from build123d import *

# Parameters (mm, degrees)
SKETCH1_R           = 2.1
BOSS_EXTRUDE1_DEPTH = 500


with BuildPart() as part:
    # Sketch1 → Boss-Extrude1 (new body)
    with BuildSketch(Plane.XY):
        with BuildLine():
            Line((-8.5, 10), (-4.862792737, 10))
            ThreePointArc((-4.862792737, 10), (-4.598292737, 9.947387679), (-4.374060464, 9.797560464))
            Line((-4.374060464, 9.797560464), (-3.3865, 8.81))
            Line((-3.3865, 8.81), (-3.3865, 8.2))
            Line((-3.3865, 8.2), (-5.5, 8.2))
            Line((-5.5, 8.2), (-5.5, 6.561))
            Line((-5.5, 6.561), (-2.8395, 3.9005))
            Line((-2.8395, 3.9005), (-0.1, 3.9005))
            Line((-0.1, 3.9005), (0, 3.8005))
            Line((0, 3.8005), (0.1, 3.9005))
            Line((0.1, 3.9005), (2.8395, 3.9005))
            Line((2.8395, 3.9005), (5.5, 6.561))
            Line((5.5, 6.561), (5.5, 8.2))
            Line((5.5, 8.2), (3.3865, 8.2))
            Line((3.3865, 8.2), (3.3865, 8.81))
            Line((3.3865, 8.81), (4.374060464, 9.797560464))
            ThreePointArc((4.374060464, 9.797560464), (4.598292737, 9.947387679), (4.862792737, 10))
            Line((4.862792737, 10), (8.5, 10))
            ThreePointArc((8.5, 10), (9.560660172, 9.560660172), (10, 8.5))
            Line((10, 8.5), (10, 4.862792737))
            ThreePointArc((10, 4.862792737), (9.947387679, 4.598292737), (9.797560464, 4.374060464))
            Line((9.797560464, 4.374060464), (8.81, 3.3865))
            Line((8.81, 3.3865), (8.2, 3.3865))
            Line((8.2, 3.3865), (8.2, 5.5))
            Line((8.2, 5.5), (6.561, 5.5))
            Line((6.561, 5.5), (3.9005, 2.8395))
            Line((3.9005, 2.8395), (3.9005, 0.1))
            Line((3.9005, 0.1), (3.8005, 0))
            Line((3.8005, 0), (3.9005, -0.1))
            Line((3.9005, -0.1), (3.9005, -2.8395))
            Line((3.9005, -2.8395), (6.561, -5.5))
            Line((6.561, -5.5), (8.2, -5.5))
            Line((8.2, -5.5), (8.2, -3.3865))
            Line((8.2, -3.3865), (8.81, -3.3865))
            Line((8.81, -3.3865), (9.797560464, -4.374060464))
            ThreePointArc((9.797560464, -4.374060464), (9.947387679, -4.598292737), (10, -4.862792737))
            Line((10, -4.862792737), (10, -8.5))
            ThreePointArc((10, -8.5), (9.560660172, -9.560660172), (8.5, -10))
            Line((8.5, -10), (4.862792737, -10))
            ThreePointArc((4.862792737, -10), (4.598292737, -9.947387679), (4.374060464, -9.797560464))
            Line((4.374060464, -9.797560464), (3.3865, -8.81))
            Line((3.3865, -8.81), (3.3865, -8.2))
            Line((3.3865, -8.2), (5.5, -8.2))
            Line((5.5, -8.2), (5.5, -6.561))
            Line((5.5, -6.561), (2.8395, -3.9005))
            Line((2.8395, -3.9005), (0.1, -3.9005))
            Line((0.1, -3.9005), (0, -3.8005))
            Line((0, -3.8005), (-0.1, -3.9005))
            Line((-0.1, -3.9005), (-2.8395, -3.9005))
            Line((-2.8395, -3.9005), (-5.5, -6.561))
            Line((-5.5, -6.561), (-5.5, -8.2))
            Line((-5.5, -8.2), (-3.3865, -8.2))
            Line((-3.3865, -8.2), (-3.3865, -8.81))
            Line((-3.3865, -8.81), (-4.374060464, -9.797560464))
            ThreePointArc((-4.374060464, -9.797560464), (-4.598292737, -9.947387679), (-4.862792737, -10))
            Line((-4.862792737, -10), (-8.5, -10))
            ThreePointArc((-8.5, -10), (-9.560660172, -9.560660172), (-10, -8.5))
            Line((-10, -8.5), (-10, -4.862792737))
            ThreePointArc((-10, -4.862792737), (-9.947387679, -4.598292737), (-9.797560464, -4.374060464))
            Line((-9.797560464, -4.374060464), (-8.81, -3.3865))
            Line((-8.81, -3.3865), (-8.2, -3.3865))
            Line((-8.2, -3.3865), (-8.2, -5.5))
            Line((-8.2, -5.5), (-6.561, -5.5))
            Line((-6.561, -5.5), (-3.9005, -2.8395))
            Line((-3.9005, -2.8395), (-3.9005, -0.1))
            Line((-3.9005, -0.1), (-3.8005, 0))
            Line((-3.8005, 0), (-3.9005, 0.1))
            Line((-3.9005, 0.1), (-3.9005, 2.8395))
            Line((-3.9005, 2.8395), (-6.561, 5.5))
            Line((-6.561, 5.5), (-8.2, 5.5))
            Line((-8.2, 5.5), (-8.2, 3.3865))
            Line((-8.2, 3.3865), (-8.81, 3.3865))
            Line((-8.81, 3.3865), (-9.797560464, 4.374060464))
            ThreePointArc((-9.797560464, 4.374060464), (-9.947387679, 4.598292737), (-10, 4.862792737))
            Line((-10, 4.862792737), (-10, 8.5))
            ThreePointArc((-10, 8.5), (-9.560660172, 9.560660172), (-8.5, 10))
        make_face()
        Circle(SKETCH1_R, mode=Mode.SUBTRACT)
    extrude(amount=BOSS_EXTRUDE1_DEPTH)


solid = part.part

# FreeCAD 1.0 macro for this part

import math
import FreeCAD as App
import Part
import Sketcher

V = App.Vector

doc = App.newDocument("Part")
body = doc.addObject("PartDesign::Body", "Body")

sketch1 = body.newObject("Sketcher::SketchObject", "Sketch")
sketch1.AttachmentSupport = (doc.getObject("XY_Plane"), [""])
sketch1.MapMode = "FlatFace"
sketch1.addGeometry(Part.LineSegment(V(-4.86, 10, 0), V(-8.5, 10, 0)), False)
sketch1.addGeometry(Part.ArcOfCircle(Part.Circle(V(-8.5, 8.5, 0), V(0, 0, 1), 1.5), math.radians(90), math.radians(180)), False)
sketch1.addGeometry(Part.LineSegment(V(-10, 8.5, 0), V(-10, 4.86, 0)), False)
sketch1.addGeometry(Part.ArcOfCircle(Part.Circle(V(-9.31, 4.86, 0), V(0, 0, 1), 0.69), math.radians(180), math.radians(225)), False)
sketch1.addGeometry(Part.LineSegment(V(-9.8, 4.37, 0), V(-8.81, 3.39, 0)), False)
sketch1.addGeometry(Part.LineSegment(V(-8.81, 3.39, 0), V(-8.2, 3.39, 0)), False)
sketch1.addGeometry(Part.LineSegment(V(-8.2, 3.39, 0), V(-8.2, 5.5, 0)), False)
sketch1.addGeometry(Part.LineSegment(V(-8.2, 5.5, 0), V(-6.56, 5.5, 0)), False)
sketch1.addGeometry(Part.LineSegment(V(-6.56, 5.5, 0), V(-3.9, 2.84, 0)), False)
sketch1.addGeometry(Part.LineSegment(V(-3.9, 2.84, 0), V(-3.9, 0.1, 0)), False)
sketch1.addGeometry(Part.LineSegment(V(-3.9, 0.1, 0), V(-3.8, 0, 0)), False)
sketch1.addGeometry(Part.LineSegment(V(-3.8, 0, 0), V(-3.9, -0.1, 0)), False)
sketch1.addGeometry(Part.LineSegment(V(-3.9, -0.1, 0), V(-3.9, -2.84, 0)), False)
sketch1.addGeometry(Part.LineSegment(V(-3.9, -2.84, 0), V(-6.56, -5.5, 0)), False)
sketch1.addGeometry(Part.LineSegment(V(-6.56, -5.5, 0), V(-8.2, -5.5, 0)), False)
sketch1.addGeometry(Part.LineSegment(V(-8.2, -5.5, 0), V(-8.2, -3.39, 0)), False)
sketch1.addGeometry(Part.LineSegment(V(-8.2, -3.39, 0), V(-8.81, -3.39, 0)), False)
sketch1.addGeometry(Part.LineSegment(V(-8.81, -3.39, 0), V(-9.8, -4.37, 0)), False)
sketch1.addGeometry(Part.ArcOfCircle(Part.Circle(V(-9.31, -4.86, 0), V(0, 0, 1), 0.69), math.radians(135), math.radians(180)), False)
sketch1.addGeometry(Part.LineSegment(V(-10, -4.86, 0), V(-10, -8.5, 0)), False)
sketch1.addGeometry(Part.ArcOfCircle(Part.Circle(V(-8.5, -8.5, 0), V(0, 0, 1), 1.5), math.radians(180), math.radians(270)), False)
sketch1.addGeometry(Part.LineSegment(V(-8.5, -10, 0), V(-4.86, -10, 0)), False)
sketch1.addGeometry(Part.ArcOfCircle(Part.Circle(V(-4.86, -9.31, 0), V(0, 0, 1), 0.69), math.radians(-90), math.radians(-45)), False)
sketch1.addGeometry(Part.LineSegment(V(-4.37, -9.8, 0), V(-3.39, -8.81, 0)), False)
sketch1.addGeometry(Part.LineSegment(V(-3.39, -8.81, 0), V(-3.39, -8.2, 0)), False)
sketch1.addGeometry(Part.LineSegment(V(-3.39, -8.2, 0), V(-5.5, -8.2, 0)), False)
sketch1.addGeometry(Part.LineSegment(V(-5.5, -8.2, 0), V(-5.5, -6.56, 0)), False)
sketch1.addGeometry(Part.LineSegment(V(-5.5, -6.56, 0), V(-2.84, -3.9, 0)), False)
sketch1.addGeometry(Part.LineSegment(V(-2.84, -3.9, 0), V(-0.1, -3.9, 0)), False)
sketch1.addGeometry(Part.LineSegment(V(-0.1, -3.9, 0), V(0, -3.8, 0)), False)
sketch1.addGeometry(Part.LineSegment(V(0, -3.8, 0), V(0.1, -3.9, 0)), False)
sketch1.addGeometry(Part.LineSegment(V(0.1, -3.9, 0), V(2.84, -3.9, 0)), False)
sketch1.addGeometry(Part.LineSegment(V(2.84, -3.9, 0), V(5.5, -6.56, 0)), False)
sketch1.addGeometry(Part.LineSegment(V(5.5, -6.56, 0), V(5.5, -8.2, 0)), False)
sketch1.addGeometry(Part.LineSegment(V(5.5, -8.2, 0), V(3.39, -8.2, 0)), False)
sketch1.addGeometry(Part.LineSegment(V(3.39, -8.2, 0), V(3.39, -8.81, 0)), False)
sketch1.addGeometry(Part.LineSegment(V(3.39, -8.81, 0), V(4.37, -9.8, 0)), False)
sketch1.addGeometry(Part.ArcOfCircle(Part.Circle(V(4.86, -9.31, 0), V(0, 0, 1), 0.69), math.radians(-135), math.radians(-90)), False)
sketch1.addGeometry(Part.LineSegment(V(4.86, -10, 0), V(8.5, -10, 0)), False)
sketch1.addGeometry(Part.ArcOfCircle(Part.Circle(V(8.5, -8.5, 0), V(0, 0, 1), 1.5), math.radians(-90), math.radians(0)), False)
sketch1.addGeometry(Part.LineSegment(V(10, -8.5, 0), V(10, -4.86, 0)), False)
sketch1.addGeometry(Part.ArcOfCircle(Part.Circle(V(9.31, -4.86, 0), V(0, 0, 1), 0.69), math.radians(0), math.radians(45)), False)
sketch1.addGeometry(Part.LineSegment(V(9.8, -4.37, 0), V(8.81, -3.39, 0)), False)
sketch1.addGeometry(Part.LineSegment(V(8.81, -3.39, 0), V(8.2, -3.39, 0)), False)
sketch1.addGeometry(Part.LineSegment(V(8.2, -3.39, 0), V(8.2, -5.5, 0)), False)
sketch1.addGeometry(Part.LineSegment(V(8.2, -5.5, 0), V(6.56, -5.5, 0)), False)
sketch1.addGeometry(Part.LineSegment(V(6.56, -5.5, 0), V(3.9, -2.84, 0)), False)
sketch1.addGeometry(Part.LineSegment(V(3.9, -2.84, 0), V(3.9, -0.1, 0)), False)
sketch1.addGeometry(Part.LineSegment(V(3.9, -0.1, 0), V(3.8, 0, 0)), False)
sketch1.addGeometry(Part.LineSegment(V(3.8, 0, 0), V(3.9, 0.1, 0)), False)
sketch1.addGeometry(Part.LineSegment(V(3.9, 0.1, 0), V(3.9, 2.84, 0)), False)
sketch1.addGeometry(Part.LineSegment(V(3.9, 2.84, 0), V(6.56, 5.5, 0)), False)
sketch1.addGeometry(Part.LineSegment(V(6.56, 5.5, 0), V(8.2, 5.5, 0)), False)
sketch1.addGeometry(Part.LineSegment(V(8.2, 5.5, 0), V(8.2, 3.39, 0)), False)
sketch1.addGeometry(Part.LineSegment(V(8.2, 3.39, 0), V(8.81, 3.39, 0)), False)
sketch1.addGeometry(Part.LineSegment(V(8.81, 3.39, 0), V(9.8, 4.37, 0)), False)
sketch1.addGeometry(Part.ArcOfCircle(Part.Circle(V(9.31, 4.86, 0), V(0, 0, 1), 0.69), math.radians(-45), math.radians(0)), False)
sketch1.addGeometry(Part.LineSegment(V(10, 4.86, 0), V(10, 8.5, 0)), False)
sketch1.addGeometry(Part.ArcOfCircle(Part.Circle(V(8.5, 8.5, 0), V(0, 0, 1), 1.5), math.radians(0), math.radians(90)), False)
sketch1.addGeometry(Part.LineSegment(V(8.5, 10, 0), V(4.86, 10, 0)), False)
sketch1.addGeometry(Part.ArcOfCircle(Part.Circle(V(4.86, 9.31, 0), V(0, 0, 1), 0.69), math.radians(90), math.radians(135)), False)
sketch1.addGeometry(Part.LineSegment(V(4.37, 9.8, 0), V(3.39, 8.81, 0)), False)
sketch1.addGeometry(Part.LineSegment(V(3.39, 8.81, 0), V(3.39, 8.2, 0)), False)
sketch1.addGeometry(Part.LineSegment(V(3.39, 8.2, 0), V(5.5, 8.2, 0)), False)
sketch1.addGeometry(Part.LineSegment(V(5.5, 8.2, 0), V(5.5, 6.56, 0)), False)
sketch1.addGeometry(Part.LineSegment(V(5.5, 6.56, 0), V(2.84, 3.9, 0)), False)
sketch1.addGeometry(Part.LineSegment(V(2.84, 3.9, 0), V(0.1, 3.9, 0)), False)
sketch1.addGeometry(Part.LineSegment(V(0.1, 3.9, 0), V(0, 3.8, 0)), False)
sketch1.addGeometry(Part.LineSegment(V(0, 3.8, 0), V(-0.1, 3.9, 0)), False)
sketch1.addGeometry(Part.LineSegment(V(-0.1, 3.9, 0), V(-2.84, 3.9, 0)), False)
sketch1.addGeometry(Part.LineSegment(V(-2.84, 3.9, 0), V(-5.5, 6.56, 0)), False)
sketch1.addGeometry(Part.LineSegment(V(-5.5, 6.56, 0), V(-5.5, 8.2, 0)), False)
sketch1.addGeometry(Part.LineSegment(V(-5.5, 8.2, 0), V(-3.39, 8.2, 0)), False)
sketch1.addGeometry(Part.LineSegment(V(-3.39, 8.2, 0), V(-3.39, 8.81, 0)), False)
sketch1.addGeometry(Part.LineSegment(V(-3.39, 8.81, 0), V(-4.37, 9.8, 0)), False)
sketch1.addGeometry(Part.ArcOfCircle(Part.Circle(V(-4.86, 9.31, 0), V(0, 0, 1), 0.69), math.radians(45), math.radians(90)), False)
sketch1.addGeometry(Part.Circle(V(0, 0, 0), V(0, 0, 1), 2.1), False)
sketch1.addConstraint(Sketcher.Constraint("Tangent", 0, 2, 1, 1))
sketch1.addConstraint(Sketcher.Constraint("Tangent", 1, 2, 2, 1))
sketch1.addConstraint(Sketcher.Constraint("Tangent", 2, 2, 3, 1))
sketch1.addConstraint(Sketcher.Constraint("Tangent", 3, 2, 4, 1))
sketch1.addConstraint(Sketcher.Constraint("Coincident", 4, 2, 5, 1))
sketch1.addConstraint(Sketcher.Constraint("Coincident", 5, 2, 6, 1))
sketch1.addConstraint(Sketcher.Constraint("Coincident", 6, 2, 7, 1))
sketch1.addConstraint(Sketcher.Constraint("Coincident", 7, 2, 8, 1))
sketch1.addConstraint(Sketcher.Constraint("Coincident", 8, 2, 9, 1))
sketch1.addConstraint(Sketcher.Constraint("Coincident", 9, 2, 10, 1))
sketch1.addConstraint(Sketcher.Constraint("Coincident", 10, 2, 11, 1))
sketch1.addConstraint(Sketcher.Constraint("Coincident", 11, 2, 12, 1))
sketch1.addConstraint(Sketcher.Constraint("Coincident", 12, 2, 13, 1))
sketch1.addConstraint(Sketcher.Constraint("Coincident", 13, 2, 14, 1))
sketch1.addConstraint(Sketcher.Constraint("Coincident", 14, 2, 15, 1))
sketch1.addConstraint(Sketcher.Constraint("Coincident", 15, 2, 16, 1))
sketch1.addConstraint(Sketcher.Constraint("Coincident", 16, 2, 17, 1))
sketch1.addConstraint(Sketcher.Constraint("Tangent", 17, 2, 18, 1))
sketch1.addConstraint(Sketcher.Constraint("Tangent", 18, 2, 19, 1))
sketch1.addConstraint(Sketcher.Constraint("Tangent", 19, 2, 20, 1))
sketch1.addConstraint(Sketcher.Constraint("Tangent", 20, 2, 21, 1))
sketch1.addConstraint(Sketcher.Constraint("Tangent", 21, 2, 22, 1))
sketch1.addConstraint(Sketcher.Constraint("Tangent", 22, 2, 23, 1))
sketch1.addConstraint(Sketcher.Constraint("Coincident", 23, 2, 24, 1))
sketch1.addConstraint(Sketcher.Constraint("Coincident", 24, 2, 25, 1))
sketch1.addConstraint(Sketcher.Constraint("Coincident", 25, 2, 26, 1))
sketch1.addConstraint(Sketcher.Constraint("Coincident", 26, 2, 27, 1))
sketch1.addConstraint(Sketcher.Constraint("Coincident", 27, 2, 28, 1))
sketch1.addConstraint(Sketcher.Constraint("Coincident", 28, 2, 29, 1))
sketch1.addConstraint(Sketcher.Constraint("Coincident", 29, 2, 30, 1))
sketch1.addConstraint(Sketcher.Constraint("Coincident", 30, 2, 31, 1))
sketch1.addConstraint(Sketcher.Constraint("Coincident", 31, 2, 32, 1))
sketch1.addConstraint(Sketcher.Constraint("Coincident", 32, 2, 33, 1))
sketch1.addConstraint(Sketcher.Constraint("Coincident", 33, 2, 34, 1))
sketch1.addConstraint(Sketcher.Constraint("Coincident", 34, 2, 35, 1))
sketch1.addConstraint(Sketcher.Constraint("Coincident", 35, 2, 36, 1))
sketch1.addConstraint(Sketcher.Constraint("Tangent", 36, 2, 37, 1))
sketch1.addConstraint(Sketcher.Constraint("Tangent", 37, 2, 38, 1))
sketch1.addConstraint(Sketcher.Constraint("Tangent", 38, 2, 39, 1))
sketch1.addConstraint(Sketcher.Constraint("Tangent", 39, 2, 40, 1))
sketch1.addConstraint(Sketcher.Constraint("Tangent", 40, 2, 41, 1))
sketch1.addConstraint(Sketcher.Constraint("Tangent", 41, 2, 42, 1))
sketch1.addConstraint(Sketcher.Constraint("Coincident", 42, 2, 43, 1))
sketch1.addConstraint(Sketcher.Constraint("Coincident", 43, 2, 44, 1))
sketch1.addConstraint(Sketcher.Constraint("Coincident", 44, 2, 45, 1))
sketch1.addConstraint(Sketcher.Constraint("Coincident", 45, 2, 46, 1))
sketch1.addConstraint(Sketcher.Constraint("Coincident", 46, 2, 47, 1))
sketch1.addConstraint(Sketcher.Constraint("Coincident", 47, 2, 48, 1))
sketch1.addConstraint(Sketcher.Constraint("Coincident", 48, 2, 49, 1))
sketch1.addConstraint(Sketcher.Constraint("Coincident", 49, 2, 50, 1))
sketch1.addConstraint(Sketcher.Constraint("Coincident", 50, 2, 51, 1))
sketch1.addConstraint(Sketcher.Constraint("Coincident", 51, 2, 52, 1))
sketch1.addConstraint(Sketcher.Constraint("Coincident", 52, 2, 53, 1))
sketch1.addConstraint(Sketcher.Constraint("Coincident", 53, 2, 54, 1))
sketch1.addConstraint(Sketcher.Constraint("Coincident", 54, 2, 55, 1))
sketch1.addConstraint(Sketcher.Constraint("Tangent", 55, 2, 56, 1))
sketch1.addConstraint(Sketcher.Constraint("Tangent", 56, 2, 57, 1))
sketch1.addConstraint(Sketcher.Constraint("Tangent", 57, 2, 58, 1))
sketch1.addConstraint(Sketcher.Constraint("Tangent", 58, 2, 59, 1))
sketch1.addConstraint(Sketcher.Constraint("Tangent", 59, 2, 60, 1))
sketch1.addConstraint(Sketcher.Constraint("Tangent", 60, 2, 61, 1))
sketch1.addConstraint(Sketcher.Constraint("Coincident", 61, 2, 62, 1))
sketch1.addConstraint(Sketcher.Constraint("Coincident", 62, 2, 63, 1))
sketch1.addConstraint(Sketcher.Constraint("Coincident", 63, 2, 64, 1))
sketch1.addConstraint(Sketcher.Constraint("Coincident", 64, 2, 65, 1))
sketch1.addConstraint(Sketcher.Constraint("Coincident", 65, 2, 66, 1))
sketch1.addConstraint(Sketcher.Constraint("Coincident", 66, 2, 67, 1))
sketch1.addConstraint(Sketcher.Constraint("Coincident", 67, 2, 68, 1))
sketch1.addConstraint(Sketcher.Constraint("Coincident", 68, 2, 69, 1))
sketch1.addConstraint(Sketcher.Constraint("Coincident", 69, 2, 70, 1))
sketch1.addConstraint(Sketcher.Constraint("Coincident", 70, 2, 71, 1))
sketch1.addConstraint(Sketcher.Constraint("Coincident", 71, 2, 72, 1))
sketch1.addConstraint(Sketcher.Constraint("Coincident", 72, 2, 73, 1))
sketch1.addConstraint(Sketcher.Constraint("Coincident", 73, 2, 74, 1))
sketch1.addConstraint(Sketcher.Constraint("Tangent", 74, 2, 75, 1))
sketch1.addConstraint(Sketcher.Constraint("Tangent", 75, 2, 0, 1))
sketch1.addConstraint(Sketcher.Constraint("Horizontal", 0))
sketch1.addConstraint(Sketcher.Constraint("Vertical", 2))
sketch1.addConstraint(Sketcher.Constraint("Horizontal", 5))
sketch1.addConstraint(Sketcher.Constraint("Vertical", 6))
sketch1.addConstraint(Sketcher.Constraint("Horizontal", 7))
sketch1.addConstraint(Sketcher.Constraint("Vertical", 9))
sketch1.addConstraint(Sketcher.Constraint("Vertical", 12))
sketch1.addConstraint(Sketcher.Constraint("Horizontal", 14))
sketch1.addConstraint(Sketcher.Constraint("Vertical", 15))
sketch1.addConstraint(Sketcher.Constraint("Horizontal", 16))
sketch1.addConstraint(Sketcher.Constraint("Vertical", 19))
sketch1.addConstraint(Sketcher.Constraint("Horizontal", 21))
sketch1.addConstraint(Sketcher.Constraint("Vertical", 24))
sketch1.addConstraint(Sketcher.Constraint("Horizontal", 25))
sketch1.addConstraint(Sketcher.Constraint("Vertical", 26))
sketch1.addConstraint(Sketcher.Constraint("Horizontal", 28))
sketch1.addConstraint(Sketcher.Constraint("Horizontal", 31))
sketch1.addConstraint(Sketcher.Constraint("Vertical", 33))
sketch1.addConstraint(Sketcher.Constraint("Horizontal", 34))
sketch1.addConstraint(Sketcher.Constraint("Vertical", 35))
sketch1.addConstraint(Sketcher.Constraint("Horizontal", 38))
sketch1.addConstraint(Sketcher.Constraint("Vertical", 40))
sketch1.addConstraint(Sketcher.Constraint("Horizontal", 43))
sketch1.addConstraint(Sketcher.Constraint("Vertical", 44))
sketch1.addConstraint(Sketcher.Constraint("Horizontal", 45))
sketch1.addConstraint(Sketcher.Constraint("Vertical", 47))
sketch1.addConstraint(Sketcher.Constraint("Vertical", 50))
sketch1.addConstraint(Sketcher.Constraint("Horizontal", 52))
sketch1.addConstraint(Sketcher.Constraint("Vertical", 53))
sketch1.addConstraint(Sketcher.Constraint("Horizontal", 54))
sketch1.addConstraint(Sketcher.Constraint("Vertical", 57))
sketch1.addConstraint(Sketcher.Constraint("Horizontal", 59))
sketch1.addConstraint(Sketcher.Constraint("Vertical", 62))
sketch1.addConstraint(Sketcher.Constraint("Horizontal", 63))
sketch1.addConstraint(Sketcher.Constraint("Vertical", 64))
sketch1.addConstraint(Sketcher.Constraint("Horizontal", 66))
sketch1.addConstraint(Sketcher.Constraint("Horizontal", 69))
sketch1.addConstraint(Sketcher.Constraint("Vertical", 71))
sketch1.addConstraint(Sketcher.Constraint("Horizontal", 72))
sketch1.addConstraint(Sketcher.Constraint("Vertical", 73))
sketch1.addConstraint(Sketcher.Constraint("Coincident", 76, 3, -1, 1))
sketch1.addConstraint(Sketcher.Constraint("Equal", 3, 18))
sketch1.addConstraint(Sketcher.Constraint("Equal", 1, 20))
sketch1.addConstraint(Sketcher.Constraint("Equal", 18, 22))
sketch1.addConstraint(Sketcher.Constraint("Equal", 22, 37))
sketch1.addConstraint(Sketcher.Constraint("Equal", 20, 39))
sketch1.addConstraint(Sketcher.Constraint("Equal", 37, 41))
sketch1.addConstraint(Sketcher.Constraint("Equal", 41, 56))
sketch1.addConstraint(Sketcher.Constraint("Equal", 39, 58))
sketch1.addConstraint(Sketcher.Constraint("Equal", 56, 60))
sketch1.addConstraint(Sketcher.Constraint("Equal", 60, 75))
sketch1.addConstraint(Sketcher.Constraint("Symmetric", 1, 3, 39, 3, -1, 1))
sketch1.addConstraint(Sketcher.Constraint("Symmetric", 18, 3, 56, 3, -1, 1))
sketch1.addConstraint(Sketcher.Constraint("Symmetric", 22, 3, 60, 3, -1, 1))
sketch1.addConstraint(Sketcher.Constraint("Symmetric", 3, 2, 41, 2, -1, 1))
sketch1.addConstraint(Sketcher.Constraint("Symmetric", 5, 2, 43, 2, -1, 1))
sketch1.addConstraint(Sketcher.Constraint("Symmetric", 7, 2, 45, 2, -1, 1))
sketch1.addConstraint(Sketcher.Constraint("Symmetric", 8, 2, 46, 2, -1, 1))
sketch1.addConstraint(Sketcher.Constraint("Symmetric", 10, 2, 48, 2, -1, 1))
sketch1.addConstraint(Sketcher.Constraint("Symmetric", 11, 2, 49, 2, -1, 1))
sketch1.addConstraint(Sketcher.Constraint("Symmetric", 13, 2, 51, 2, -1, 1))
sketch1.addConstraint(Sketcher.Constraint("Symmetric", 15, 2, 53, 2, -1, 1))
sketch1.addConstraint(Sketcher.Constraint("Symmetric", 23, 2, 61, 2, -1, 1))
sketch1.addConstraint(Sketcher.Constraint("Symmetric", 25, 2, 63, 2, -1, 1))
sketch1.addConstraint(Sketcher.Constraint("Symmetric", 27, 2, 65, 2, -1, 1))
sketch1.addConstraint(Sketcher.Constraint("Symmetric", 29, 2, 67, 2, -1, 1))
sketch1.addConstraint(Sketcher.Constraint("Symmetric", 30, 2, 68, 2, -1, 1))
sketch1.addConstraint(Sketcher.Constraint("Symmetric", 32, 2, 70, 2, -1, 1))
sketch1.addConstraint(Sketcher.Constraint("Symmetric", 34, 2, 72, 2, -1, 1))
sketch1.addConstraint(Sketcher.Constraint("Symmetric", 36, 2, 74, 2, -1, 1))
sketch1.addConstraint(Sketcher.Constraint("Symmetric", 22, 3, 37, 3, -2))
sketch1.addConstraint(Sketcher.Constraint("Symmetric", 18, 3, 41, 3, -2))
sketch1.addConstraint(Sketcher.Constraint("Symmetric", 28, 2, 30, 2, -2))
sketch1.addConstraint(Sketcher.Constraint("Symmetric", 26, 2, 32, 2, -2))
sketch1.addConstraint(Sketcher.Constraint("Symmetric", 24, 2, 34, 2, -2))
sketch1.addConstraint(Sketcher.Constraint("Symmetric", 16, 2, 42, 2, -2))
sketch1.addConstraint(Sketcher.Constraint("Symmetric", 14, 2, 44, 2, -2))
sketch1.addConstraint(Sketcher.Constraint("Symmetric", 12, 2, 46, 2, -2))
sketch1.addConstraint(Sketcher.Constraint("PointOnObject", 10, 2, -1))
sketch1.addConstraint(Sketcher.Constraint("PointOnObject", 29, 2, -2))
sketch1.addConstraint(Sketcher.Constraint("Parallel", 4, 8))
sketch1.addConstraint(Sketcher.Constraint("Parallel", 8, 10))
sketch1.addConstraint(Sketcher.Constraint("Perpendicular", 10, 11))
sketch1.addConstraint(Sketcher.Constraint("Parallel", 11, 13))
sketch1.addConstraint(Sketcher.Constraint("Parallel", 13, 17))
sketch1.addConstraint(Sketcher.Constraint("Parallel", 17, 23))
sketch1.addConstraint(Sketcher.Constraint("Parallel", 23, 27))
sketch1.addConstraint(Sketcher.Constraint("Parallel", 27, 29))
sketch1.addConstraint(Sketcher.Constraint("Parallel", 30, 32))
sketch1.addConstraint(Sketcher.Constraint("Parallel", 32, 36))
sketch1.addConstraint(Sketcher.Constraint("Parallel", 46, 48))
sketch1.addConstraint(Sketcher.Constraint("Parallel", 49, 51))
sketch1.addConstraint(Sketcher.Constraint("Parallel", 51, 55))
sketch1.addConstraint(Sketcher.Constraint("Parallel", 61, 65))
sketch1.addConstraint(Sketcher.Constraint("Parallel", 65, 67))
sketch1.addConstraint(Sketcher.Constraint("Parallel", 68, 70))
sketch1.addConstraint(Sketcher.Constraint("Equal", 59, 2))
sketch1.addConstraint(Sketcher.Constraint("Equal", 72, 6))
sketch1.addConstraint(Sketcher.Constraint("Equal", 69, 9))
sketch1.addConstraint(Sketcher.Constraint("Equal", 54, 24))
sketch1.addConstraint(Sketcher.Constraint("Equal", 52, 26))
sketch1.addConstraint(Sketcher.Constraint("Equal", 17, 23))
sketch1.addConstraint(Sketcher.Constraint("Equal", 13, 27))
sketch1.addConstraint(Sketcher.Constraint("Equal", 11, 29))
sketch1.addConstraint(Sketcher.Constraint("Diameter", 76, 4.2))
sketch1.addConstraint(Sketcher.Constraint("Radius", 1, 1.5))
sketch1.addConstraint(Sketcher.Constraint("DistanceY", -1, 1, 0, 2, 10.0))
sketch1.addConstraint(Sketcher.Constraint("DistanceX", 5, 1, 5, 2, 0.61))
sketch1.addConstraint(Sketcher.Constraint("DistanceX", 5, 2, -1, 1, 8.2))
sketch1.addConstraint(Sketcher.Constraint("DistanceY", -1, 1, 6, 2, 5.5))
sketch1.addConstraint(Sketcher.Constraint("DistanceY", -1, 1, 9, 2, 0.1))
sketch1.addConstraint(Sketcher.Constraint("DistanceX", 7, 1, 7, 2, 1.639))
sketch1.addConstraint(Sketcher.Constraint("Radius", 3, 0.691172))
sketch1.addConstraint(Sketcher.Constraint("DistanceX", 25, 2, 25, 1, 2.1135))
sketch1.addConstraint(Sketcher.Constraint("DistanceX", 28, 1, 28, 2, 2.7395))
pad1 = body.newObject("PartDesign::Pad", "Pad")
pad1.Profile = sketch1
pad1.Length = 500

doc.recompute()
